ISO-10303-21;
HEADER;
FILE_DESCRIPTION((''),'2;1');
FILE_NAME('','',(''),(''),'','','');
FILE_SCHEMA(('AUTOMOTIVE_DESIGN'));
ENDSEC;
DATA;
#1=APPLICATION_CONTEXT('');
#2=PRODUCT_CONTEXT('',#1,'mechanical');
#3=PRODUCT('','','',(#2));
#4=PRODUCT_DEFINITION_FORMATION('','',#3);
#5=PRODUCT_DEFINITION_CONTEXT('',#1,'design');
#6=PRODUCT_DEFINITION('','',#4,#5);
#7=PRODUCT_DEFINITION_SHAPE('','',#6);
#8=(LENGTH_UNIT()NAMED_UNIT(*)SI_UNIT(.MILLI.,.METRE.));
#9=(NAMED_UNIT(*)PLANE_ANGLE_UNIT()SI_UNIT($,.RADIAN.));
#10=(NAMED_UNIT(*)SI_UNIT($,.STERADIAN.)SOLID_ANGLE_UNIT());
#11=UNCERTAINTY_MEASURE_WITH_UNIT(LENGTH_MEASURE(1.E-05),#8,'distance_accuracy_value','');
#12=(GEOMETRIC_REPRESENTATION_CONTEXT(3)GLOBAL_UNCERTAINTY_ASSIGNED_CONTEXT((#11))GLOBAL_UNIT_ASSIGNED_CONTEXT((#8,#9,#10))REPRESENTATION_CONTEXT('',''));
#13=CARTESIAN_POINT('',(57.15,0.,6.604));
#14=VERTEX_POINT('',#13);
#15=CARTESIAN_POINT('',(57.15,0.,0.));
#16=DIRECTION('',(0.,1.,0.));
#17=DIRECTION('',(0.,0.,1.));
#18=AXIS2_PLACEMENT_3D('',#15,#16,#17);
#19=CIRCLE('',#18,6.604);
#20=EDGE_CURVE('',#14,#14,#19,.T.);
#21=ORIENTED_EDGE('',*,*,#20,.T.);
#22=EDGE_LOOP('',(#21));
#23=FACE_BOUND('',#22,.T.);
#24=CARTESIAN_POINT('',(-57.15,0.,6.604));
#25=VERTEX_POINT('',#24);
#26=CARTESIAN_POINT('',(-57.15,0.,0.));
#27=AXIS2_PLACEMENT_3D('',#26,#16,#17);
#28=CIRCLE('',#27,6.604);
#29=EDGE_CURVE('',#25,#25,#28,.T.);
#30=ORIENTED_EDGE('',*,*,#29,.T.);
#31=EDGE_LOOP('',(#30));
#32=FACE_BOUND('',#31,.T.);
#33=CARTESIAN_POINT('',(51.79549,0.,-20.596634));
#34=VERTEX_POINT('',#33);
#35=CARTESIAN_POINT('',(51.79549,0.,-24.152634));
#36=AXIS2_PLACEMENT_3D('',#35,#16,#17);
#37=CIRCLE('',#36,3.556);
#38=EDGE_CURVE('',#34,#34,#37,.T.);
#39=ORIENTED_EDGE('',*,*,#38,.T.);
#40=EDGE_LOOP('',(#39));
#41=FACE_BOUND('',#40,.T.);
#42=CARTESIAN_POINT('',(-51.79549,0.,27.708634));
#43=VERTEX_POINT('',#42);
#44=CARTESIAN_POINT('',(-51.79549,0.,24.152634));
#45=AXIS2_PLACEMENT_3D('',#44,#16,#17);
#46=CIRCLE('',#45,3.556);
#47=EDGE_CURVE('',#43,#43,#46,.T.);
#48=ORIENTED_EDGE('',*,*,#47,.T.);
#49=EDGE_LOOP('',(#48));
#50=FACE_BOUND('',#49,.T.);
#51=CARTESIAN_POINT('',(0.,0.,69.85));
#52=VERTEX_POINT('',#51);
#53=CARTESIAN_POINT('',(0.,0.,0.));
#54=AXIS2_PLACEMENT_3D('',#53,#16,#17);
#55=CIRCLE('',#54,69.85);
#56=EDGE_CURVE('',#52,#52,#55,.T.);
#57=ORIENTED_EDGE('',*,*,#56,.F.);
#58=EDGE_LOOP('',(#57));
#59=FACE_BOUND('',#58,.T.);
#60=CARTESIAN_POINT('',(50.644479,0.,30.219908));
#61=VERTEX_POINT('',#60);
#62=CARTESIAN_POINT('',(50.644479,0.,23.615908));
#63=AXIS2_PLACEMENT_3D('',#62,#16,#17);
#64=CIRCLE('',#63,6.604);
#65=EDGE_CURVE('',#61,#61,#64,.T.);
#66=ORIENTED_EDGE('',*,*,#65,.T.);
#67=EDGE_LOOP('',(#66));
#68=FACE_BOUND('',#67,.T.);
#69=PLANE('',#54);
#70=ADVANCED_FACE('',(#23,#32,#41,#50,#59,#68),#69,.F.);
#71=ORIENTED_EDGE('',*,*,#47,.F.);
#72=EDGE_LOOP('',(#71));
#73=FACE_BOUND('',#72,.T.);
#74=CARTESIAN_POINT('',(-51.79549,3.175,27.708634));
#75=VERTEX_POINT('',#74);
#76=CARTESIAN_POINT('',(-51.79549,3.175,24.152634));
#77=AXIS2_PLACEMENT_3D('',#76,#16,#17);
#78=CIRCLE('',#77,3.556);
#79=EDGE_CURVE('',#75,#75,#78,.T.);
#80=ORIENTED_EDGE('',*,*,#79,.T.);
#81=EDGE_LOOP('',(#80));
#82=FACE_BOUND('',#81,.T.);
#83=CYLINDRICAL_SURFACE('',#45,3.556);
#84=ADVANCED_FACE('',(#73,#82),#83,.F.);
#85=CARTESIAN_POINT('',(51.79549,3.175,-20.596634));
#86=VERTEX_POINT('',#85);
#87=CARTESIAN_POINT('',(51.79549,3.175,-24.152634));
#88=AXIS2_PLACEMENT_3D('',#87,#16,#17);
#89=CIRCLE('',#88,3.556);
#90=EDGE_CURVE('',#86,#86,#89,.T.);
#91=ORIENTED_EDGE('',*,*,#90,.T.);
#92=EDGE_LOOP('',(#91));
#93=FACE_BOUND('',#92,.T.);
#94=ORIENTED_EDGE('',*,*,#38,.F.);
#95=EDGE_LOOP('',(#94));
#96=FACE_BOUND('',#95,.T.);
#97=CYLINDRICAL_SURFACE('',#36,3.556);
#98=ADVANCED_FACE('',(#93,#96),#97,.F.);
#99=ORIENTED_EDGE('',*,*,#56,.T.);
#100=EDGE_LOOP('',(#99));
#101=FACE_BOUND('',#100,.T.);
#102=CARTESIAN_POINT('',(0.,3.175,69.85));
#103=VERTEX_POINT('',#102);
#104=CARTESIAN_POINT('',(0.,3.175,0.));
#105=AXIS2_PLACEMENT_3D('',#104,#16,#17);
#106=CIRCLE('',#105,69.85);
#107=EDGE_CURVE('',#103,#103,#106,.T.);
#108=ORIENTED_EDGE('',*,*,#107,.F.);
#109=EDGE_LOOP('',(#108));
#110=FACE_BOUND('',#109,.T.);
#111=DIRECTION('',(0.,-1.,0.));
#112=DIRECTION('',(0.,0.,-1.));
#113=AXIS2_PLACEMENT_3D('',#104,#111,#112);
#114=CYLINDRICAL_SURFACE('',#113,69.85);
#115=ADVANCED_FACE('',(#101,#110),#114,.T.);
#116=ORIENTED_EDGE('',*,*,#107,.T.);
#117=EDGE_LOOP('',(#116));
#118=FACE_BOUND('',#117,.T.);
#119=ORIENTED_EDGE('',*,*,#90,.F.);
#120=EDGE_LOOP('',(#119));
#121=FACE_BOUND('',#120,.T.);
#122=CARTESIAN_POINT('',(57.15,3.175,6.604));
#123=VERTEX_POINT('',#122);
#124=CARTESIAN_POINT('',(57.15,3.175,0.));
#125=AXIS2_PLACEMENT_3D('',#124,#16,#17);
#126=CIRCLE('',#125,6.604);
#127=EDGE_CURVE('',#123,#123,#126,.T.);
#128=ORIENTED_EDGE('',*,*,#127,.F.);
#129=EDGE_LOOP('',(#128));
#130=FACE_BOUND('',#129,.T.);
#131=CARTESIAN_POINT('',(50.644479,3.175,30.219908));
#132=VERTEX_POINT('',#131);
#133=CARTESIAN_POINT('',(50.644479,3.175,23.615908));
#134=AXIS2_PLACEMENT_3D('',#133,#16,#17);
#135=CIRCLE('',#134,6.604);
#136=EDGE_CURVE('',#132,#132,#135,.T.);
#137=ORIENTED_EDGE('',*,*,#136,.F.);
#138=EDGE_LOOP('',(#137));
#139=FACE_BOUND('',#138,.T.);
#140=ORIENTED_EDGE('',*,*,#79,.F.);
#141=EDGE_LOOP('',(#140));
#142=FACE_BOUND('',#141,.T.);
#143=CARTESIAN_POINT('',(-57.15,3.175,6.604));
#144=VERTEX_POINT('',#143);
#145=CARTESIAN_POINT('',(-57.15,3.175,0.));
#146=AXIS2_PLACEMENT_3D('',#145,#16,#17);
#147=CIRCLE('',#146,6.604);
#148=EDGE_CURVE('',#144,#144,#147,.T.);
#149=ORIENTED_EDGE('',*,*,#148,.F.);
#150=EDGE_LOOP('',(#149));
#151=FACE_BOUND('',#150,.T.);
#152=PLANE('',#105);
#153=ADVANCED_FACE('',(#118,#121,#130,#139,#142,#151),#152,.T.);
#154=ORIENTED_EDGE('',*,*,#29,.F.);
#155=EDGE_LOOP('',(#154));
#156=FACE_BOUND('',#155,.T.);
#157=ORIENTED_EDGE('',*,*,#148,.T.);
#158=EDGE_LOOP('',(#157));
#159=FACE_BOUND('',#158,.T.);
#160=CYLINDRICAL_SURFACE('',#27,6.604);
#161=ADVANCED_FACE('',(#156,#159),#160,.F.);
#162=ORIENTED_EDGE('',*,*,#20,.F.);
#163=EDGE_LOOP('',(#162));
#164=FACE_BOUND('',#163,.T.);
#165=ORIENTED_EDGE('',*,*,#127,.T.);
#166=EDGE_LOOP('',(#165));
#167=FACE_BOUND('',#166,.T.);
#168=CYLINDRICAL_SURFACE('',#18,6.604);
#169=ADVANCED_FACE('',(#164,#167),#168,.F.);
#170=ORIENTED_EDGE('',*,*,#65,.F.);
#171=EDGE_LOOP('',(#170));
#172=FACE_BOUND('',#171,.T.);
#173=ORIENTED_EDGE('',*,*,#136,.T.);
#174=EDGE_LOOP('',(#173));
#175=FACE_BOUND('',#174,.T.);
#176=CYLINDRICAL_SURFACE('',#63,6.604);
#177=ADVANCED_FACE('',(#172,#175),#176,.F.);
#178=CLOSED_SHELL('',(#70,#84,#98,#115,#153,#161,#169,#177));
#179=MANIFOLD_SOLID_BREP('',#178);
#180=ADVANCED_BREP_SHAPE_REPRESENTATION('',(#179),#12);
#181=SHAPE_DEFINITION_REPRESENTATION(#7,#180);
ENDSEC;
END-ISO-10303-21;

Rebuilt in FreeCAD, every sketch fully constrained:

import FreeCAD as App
import Part
import Sketcher
from FreeCAD import Vector
Q = App.Units.Quantity

doc = App.newDocument("Part")
body = doc.addObject("PartDesign::Body", "Body")

sketch1 = body.newObject("Sketcher::SketchObject", "Sketch")
sketch1.AttachmentSupport = (doc.getObject("XZ_Plane"), [""])
sketch1.MapMode = "FlatFace"
sketch1.addGeometry(Part.Circle(Vector(0, 0, 0), Vector(0, 0, 1), 70), False)
sketch1.addConstraint(Sketcher.Constraint("Coincident", 0, 3, -1, 1))
sketch1.addConstraint(Sketcher.Constraint("Diameter", 0, Q("5.5 in")))
pad1 = body.newObject("PartDesign::Pad", "Pad")
pad1.Profile = sketch1
pad1.Length = Q("0.125 in")
pad1.Reversed = True

sketch2 = body.newObject("Sketcher::SketchObject", "Sketch001")
sketch2.AttachmentSupport = (doc.getObject("XZ_Plane"), [""])
sketch2.MapMode = "FlatFace"
sketch2.AttachmentOffset = App.Placement(Vector(0, 0, -0.125 * 25.4), App.Rotation())
sketch2.addGeometry(Part.Circle(Vector(-51.8, 24.2, 0), Vector(0, 0, 1), 3.6), False)
sketch2.addGeometry(Part.Circle(Vector(51.8, -24.2, 0), Vector(0, 0, 1), 3.6), False)
sketch2.addGeometry(Part.Circle(Vector(-57.1, 0, 0), Vector(0, 0, 1), 6.6), False)
sketch2.addGeometry(Part.Circle(Vector(57.1, 0, 0), Vector(0, 0, 1), 6.6), False)
sketch2.addGeometry(Part.Circle(Vector(50.6, 23.6, 0), Vector(0, 0, 1), 6.6), False)
sketch2.addConstraint(Sketcher.Constraint("Equal", 0, 1))
sketch2.addConstraint(Sketcher.Constraint("Equal", 2, 3))
sketch2.addConstraint(Sketcher.Constraint("Equal", 3, 4))
sketch2.addConstraint(Sketcher.Constraint("Symmetric", 0, 3, 1, 3, -1, 1))
sketch2.addConstraint(Sketcher.Constraint("Symmetric", 2, 3, 3, 3, -1, 1))
sketch2.addConstraint(Sketcher.Constraint("PointOnObject", 2, 3, -1))
sketch2.addConstraint(Sketcher.Constraint("Diameter", 0, Q("0.28 in")))
sketch2.addConstraint(Sketcher.Constraint("Diameter", 2, Q("0.52 in")))
sketch2.addConstraint(Sketcher.Constraint("DistanceX", 2, 3, 3, 3, Q("4.5 in")))
sketch2.addConstraint(Sketcher.Constraint("DistanceX", 0, 3, -1, 1, Q("51.79549 mm")))
sketch2.addConstraint(Sketcher.Constraint("DistanceX", -1, 1, 4, 3, Q("50.644479 mm")))
sketch2.addConstraint(Sketcher.Constraint("DistanceY", -1, 1, 4, 3, Q("23.615908 mm")))
sketch2.addConstraint(Sketcher.Constraint("DistanceY", -1, 1, 0, 3, Q("24.152634 mm")))
pocket1 = body.newObject("PartDesign::Pocket", "Pocket")
pocket1.Profile = sketch2
pocket1.Length = Q("0.125 in")
pocket1.Reversed = True

doc.recompute()
